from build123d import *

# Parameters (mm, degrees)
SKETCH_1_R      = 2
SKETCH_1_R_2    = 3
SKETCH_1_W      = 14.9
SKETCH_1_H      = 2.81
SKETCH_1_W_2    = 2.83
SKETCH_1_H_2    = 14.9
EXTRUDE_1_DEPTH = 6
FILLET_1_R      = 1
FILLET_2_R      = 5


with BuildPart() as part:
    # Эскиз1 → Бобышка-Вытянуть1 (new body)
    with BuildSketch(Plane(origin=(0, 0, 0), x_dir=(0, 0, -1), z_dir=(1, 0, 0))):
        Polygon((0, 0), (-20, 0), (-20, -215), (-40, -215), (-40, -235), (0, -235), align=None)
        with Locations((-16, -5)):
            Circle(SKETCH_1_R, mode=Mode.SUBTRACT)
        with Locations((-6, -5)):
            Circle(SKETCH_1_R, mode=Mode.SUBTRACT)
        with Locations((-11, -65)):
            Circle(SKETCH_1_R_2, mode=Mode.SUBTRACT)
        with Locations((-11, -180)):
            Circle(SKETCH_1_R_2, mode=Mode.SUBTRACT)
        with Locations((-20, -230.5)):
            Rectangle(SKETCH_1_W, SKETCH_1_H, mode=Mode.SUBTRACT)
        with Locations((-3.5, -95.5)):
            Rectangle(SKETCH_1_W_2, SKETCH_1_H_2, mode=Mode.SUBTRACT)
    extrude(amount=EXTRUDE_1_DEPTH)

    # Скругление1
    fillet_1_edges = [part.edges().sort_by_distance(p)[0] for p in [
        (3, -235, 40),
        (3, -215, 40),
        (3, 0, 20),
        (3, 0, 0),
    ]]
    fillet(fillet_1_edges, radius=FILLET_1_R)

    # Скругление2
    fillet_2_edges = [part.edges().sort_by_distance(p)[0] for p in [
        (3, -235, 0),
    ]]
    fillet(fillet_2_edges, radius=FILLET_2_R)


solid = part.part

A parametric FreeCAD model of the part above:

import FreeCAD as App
import Part
import Sketcher
from FreeCAD import Vector
Q = App.Units.Quantity


def edges_at(feature, points):
    """Names of the edges that pass closest to the given points."""
    edges = feature.Shape.Edges
    near = lambda p: min(range(len(edges)), key=lambda i: edges[i].distToShape(Part.Vertex(*p))[0])
    return sorted({f"Edge{near(p) + 1}" for p in points})


def add_polygon(sketch, points):
    """Adds a closed chain of lines whose ends are joined by coincident constraints."""
    first, n = sketch.GeometryCount, len(points)
    for a, b in zip(points, points[1:] + points[:1]):
        sketch.addGeometry(Part.LineSegment(App.Vector(*a, 0), App.Vector(*b, 0)), False)
    for i in range(n):
        sketch.addConstraint(Sketcher.Constraint("Coincident", first + i, 2, first + (i + 1) % n, 1))

doc = App.newDocument("Part")
params = doc.addObject("Spreadsheet::Sheet", "Params")
for row, (alias, value) in enumerate([
    ("sketch1_diameter", "6 mm"),
    ("sketch1_diameter2", "4 mm"),
    ("sketch1_width", "215 mm"),
    ("sketch1_width2", "20 mm"),
    ("sketch1_width3", "14.9 mm"),
    ("pad1_length", "6 mm"),
    ("fillet_radius", "1 mm"),
    ("fillet2_radius", "5 mm"),
], start=1):
    params.set(f"A{row}", alias)
    params.set(f"B{row}", "=" + value)
    params.setAlias(f"B{row}", alias)

body = doc.addObject("PartDesign::Body", "Body")

sketch1 = body.newObject("Sketcher::SketchObject", "Sketch")
sketch1.AttachmentSupport = (doc.getObject("YZ_Plane"), [""])
sketch1.MapMode = "FlatFace"
add_polygon(sketch1, [(0, 0), (0, 20), (-215, 20), (-215, 40), (-235, 40), (-235, 0)])
add_polygon(sketch1, [(-231.905, 12.55), (-231.905, 27.45), (-229.095, 27.45), (-229.095, 12.55)])
sketch1.addGeometry(Part.Circle(Vector(-180, 11, 0), Vector(0, 0, 1), 3), False)
sketch1.addGeometry(Part.Circle(Vector(-5, 16, 0), Vector(0, 0, 1), 2), False)
sketch1.addGeometry(Part.Circle(Vector(-65, 11, 0), Vector(0, 0, 1), 3), False)
add_polygon(sketch1, [(-102.95, 2.085), (-102.95, 4.915), (-88.05, 4.915), (-88.05, 2.085)])
sketch1.addGeometry(Part.Circle(Vector(-5, 6, 0), Vector(0, 0, 1), 2), False)
sketch1.addConstraint(Sketcher.Constraint("Vertical", 0))
sketch1.addConstraint(Sketcher.Constraint("Horizontal", 1))
sketch1.addConstraint(Sketcher.Constraint("Vertical", 2))
sketch1.addConstraint(Sketcher.Constraint("Horizontal", 3))
sketch1.addConstraint(Sketcher.Constraint("Vertical", 4))
sketch1.addConstraint(Sketcher.Constraint("Horizontal", 5))
sketch1.addConstraint(Sketcher.Constraint("Vertical", 6))
sketch1.addConstraint(Sketcher.Constraint("Horizontal", 7))
sketch1.addConstraint(Sketcher.Constraint("Vertical", 8))
sketch1.addConstraint(Sketcher.Constraint("Horizontal", 9))
sketch1.addConstraint(Sketcher.Constraint("Vertical", 13))
sketch1.addConstraint(Sketcher.Constraint("Horizontal", 14))
sketch1.addConstraint(Sketcher.Constraint("Vertical", 15))
sketch1.addConstraint(Sketcher.Constraint("Horizontal", 16))
sketch1.addConstraint(Sketcher.Constraint("Coincident", 5, 2, -1, 1))
sketch1.addConstraint(Sketcher.Constraint("Equal", 10, 12))
sketch1.addConstraint(Sketcher.Constraint("Equal", 11, 17))
sketch1.addConstraint(Sketcher.Constraint("Horizontal", 10, 3, 12, 3))
sketch1.addConstraint(Sketcher.Constraint("Vertical", 11, 3, 17, 3))
sketch1.addConstraint(Sketcher.Constraint("Equal", 3, 0))
sketch1.addConstraint(Sketcher.Constraint("Equal", 0, 2))
sketch1.addConstraint(Sketcher.Constraint("Equal", 16, 6))
sketch1.addConstraint(Sketcher.Constraint("Diameter", 10, Q("6 mm")))
sketch1.addConstraint(Sketcher.Constraint("Diameter", 11, Q("4 mm")))
sketch1.addConstraint(Sketcher.Constraint("DistanceX", 1, 2, 1, 1, Q("215 mm")))
sketch1.addConstraint(Sketcher.Constraint("DistanceX", 3, 2, 3, 1, Q("20 mm")))
sketch1.addConstraint(Sketcher.Constraint("DistanceX", 14, 1, 14, 2, Q("14.9 mm")))
sketch1.addConstraint(Sketcher.Constraint("DistanceX", 10, 3, -1, 1, Q("180 mm")))
sketch1.addConstraint(Sketcher.Constraint("DistanceY", -1, 1, 10, 3, Q("11 mm")))
sketch1.addConstraint(Sketcher.Constraint("DistanceX", 11, 3, -1, 1, Q("5 mm")))
sketch1.addConstraint(Sketcher.Constraint("DistanceY", -1, 1, 11, 3, Q("16 mm")))
sketch1.addConstraint(Sketcher.Constraint("DistanceX", 12, 3, -1, 1, Q("65 mm")))
sketch1.addConstraint(Sketcher.Constraint("DistanceY", -1, 1, 17, 3, Q("6 mm")))
sketch1.addConstraint(Sketcher.Constraint("DistanceX", 7, 1, 7, 2, Q("2.81 mm")))
sketch1.addConstraint(Sketcher.Constraint("DistanceY", 13, 1, 13, 2, Q("2.83 mm")))
sketch1.addConstraint(Sketcher.Constraint("DistanceY", -1, 1, 6, 2, Q("27.45 mm")))
sketch1.addConstraint(Sketcher.Constraint("DistanceX", 13, 2, -1, 1, Q("102.95 mm")))
sketch1.addConstraint(Sketcher.Constraint("DistanceX", 6, 2, -1, 1, Q("231.905 mm")))
sketch1.addConstraint(Sketcher.Constraint("DistanceY", -1, 1, 13, 2, Q("4.915 mm")))
sketch1.setExpression("Constraints[36]", "Params.sketch1_diameter")
sketch1.setExpression("Constraints[37]", "Params.sketch1_diameter2")
sketch1.setExpression("Constraints[38]", "Params.sketch1_width")
sketch1.setExpression("Constraints[39]", "Params.sketch1_width2")
sketch1.setExpression("Constraints[40]", "Params.sketch1_width3")
pad1 = body.newObject("PartDesign::Pad", "Pad")
pad1.Profile = sketch1
pad1.setExpression("Length", "Params.pad1_length")
doc.recompute()

fillet = body.newObject("PartDesign::Fillet", "Fillet")
fillet.Base = (pad1, edges_at(pad1, [
    (3, -235, 40),
    (3, -215, 40),
    (3, 0, 20),
    (3, 0, 0),
]))
fillet.setExpression("Radius", "Params.fillet_radius")
doc.recompute()

fillet2 = body.newObject("PartDesign::Fillet", "Fillet001")
fillet2.Base = (fillet, edges_at(fillet, [(3, -235, 0)]))
fillet2.setExpression("Radius", "Params.fillet2_radius")

doc.recompute()
